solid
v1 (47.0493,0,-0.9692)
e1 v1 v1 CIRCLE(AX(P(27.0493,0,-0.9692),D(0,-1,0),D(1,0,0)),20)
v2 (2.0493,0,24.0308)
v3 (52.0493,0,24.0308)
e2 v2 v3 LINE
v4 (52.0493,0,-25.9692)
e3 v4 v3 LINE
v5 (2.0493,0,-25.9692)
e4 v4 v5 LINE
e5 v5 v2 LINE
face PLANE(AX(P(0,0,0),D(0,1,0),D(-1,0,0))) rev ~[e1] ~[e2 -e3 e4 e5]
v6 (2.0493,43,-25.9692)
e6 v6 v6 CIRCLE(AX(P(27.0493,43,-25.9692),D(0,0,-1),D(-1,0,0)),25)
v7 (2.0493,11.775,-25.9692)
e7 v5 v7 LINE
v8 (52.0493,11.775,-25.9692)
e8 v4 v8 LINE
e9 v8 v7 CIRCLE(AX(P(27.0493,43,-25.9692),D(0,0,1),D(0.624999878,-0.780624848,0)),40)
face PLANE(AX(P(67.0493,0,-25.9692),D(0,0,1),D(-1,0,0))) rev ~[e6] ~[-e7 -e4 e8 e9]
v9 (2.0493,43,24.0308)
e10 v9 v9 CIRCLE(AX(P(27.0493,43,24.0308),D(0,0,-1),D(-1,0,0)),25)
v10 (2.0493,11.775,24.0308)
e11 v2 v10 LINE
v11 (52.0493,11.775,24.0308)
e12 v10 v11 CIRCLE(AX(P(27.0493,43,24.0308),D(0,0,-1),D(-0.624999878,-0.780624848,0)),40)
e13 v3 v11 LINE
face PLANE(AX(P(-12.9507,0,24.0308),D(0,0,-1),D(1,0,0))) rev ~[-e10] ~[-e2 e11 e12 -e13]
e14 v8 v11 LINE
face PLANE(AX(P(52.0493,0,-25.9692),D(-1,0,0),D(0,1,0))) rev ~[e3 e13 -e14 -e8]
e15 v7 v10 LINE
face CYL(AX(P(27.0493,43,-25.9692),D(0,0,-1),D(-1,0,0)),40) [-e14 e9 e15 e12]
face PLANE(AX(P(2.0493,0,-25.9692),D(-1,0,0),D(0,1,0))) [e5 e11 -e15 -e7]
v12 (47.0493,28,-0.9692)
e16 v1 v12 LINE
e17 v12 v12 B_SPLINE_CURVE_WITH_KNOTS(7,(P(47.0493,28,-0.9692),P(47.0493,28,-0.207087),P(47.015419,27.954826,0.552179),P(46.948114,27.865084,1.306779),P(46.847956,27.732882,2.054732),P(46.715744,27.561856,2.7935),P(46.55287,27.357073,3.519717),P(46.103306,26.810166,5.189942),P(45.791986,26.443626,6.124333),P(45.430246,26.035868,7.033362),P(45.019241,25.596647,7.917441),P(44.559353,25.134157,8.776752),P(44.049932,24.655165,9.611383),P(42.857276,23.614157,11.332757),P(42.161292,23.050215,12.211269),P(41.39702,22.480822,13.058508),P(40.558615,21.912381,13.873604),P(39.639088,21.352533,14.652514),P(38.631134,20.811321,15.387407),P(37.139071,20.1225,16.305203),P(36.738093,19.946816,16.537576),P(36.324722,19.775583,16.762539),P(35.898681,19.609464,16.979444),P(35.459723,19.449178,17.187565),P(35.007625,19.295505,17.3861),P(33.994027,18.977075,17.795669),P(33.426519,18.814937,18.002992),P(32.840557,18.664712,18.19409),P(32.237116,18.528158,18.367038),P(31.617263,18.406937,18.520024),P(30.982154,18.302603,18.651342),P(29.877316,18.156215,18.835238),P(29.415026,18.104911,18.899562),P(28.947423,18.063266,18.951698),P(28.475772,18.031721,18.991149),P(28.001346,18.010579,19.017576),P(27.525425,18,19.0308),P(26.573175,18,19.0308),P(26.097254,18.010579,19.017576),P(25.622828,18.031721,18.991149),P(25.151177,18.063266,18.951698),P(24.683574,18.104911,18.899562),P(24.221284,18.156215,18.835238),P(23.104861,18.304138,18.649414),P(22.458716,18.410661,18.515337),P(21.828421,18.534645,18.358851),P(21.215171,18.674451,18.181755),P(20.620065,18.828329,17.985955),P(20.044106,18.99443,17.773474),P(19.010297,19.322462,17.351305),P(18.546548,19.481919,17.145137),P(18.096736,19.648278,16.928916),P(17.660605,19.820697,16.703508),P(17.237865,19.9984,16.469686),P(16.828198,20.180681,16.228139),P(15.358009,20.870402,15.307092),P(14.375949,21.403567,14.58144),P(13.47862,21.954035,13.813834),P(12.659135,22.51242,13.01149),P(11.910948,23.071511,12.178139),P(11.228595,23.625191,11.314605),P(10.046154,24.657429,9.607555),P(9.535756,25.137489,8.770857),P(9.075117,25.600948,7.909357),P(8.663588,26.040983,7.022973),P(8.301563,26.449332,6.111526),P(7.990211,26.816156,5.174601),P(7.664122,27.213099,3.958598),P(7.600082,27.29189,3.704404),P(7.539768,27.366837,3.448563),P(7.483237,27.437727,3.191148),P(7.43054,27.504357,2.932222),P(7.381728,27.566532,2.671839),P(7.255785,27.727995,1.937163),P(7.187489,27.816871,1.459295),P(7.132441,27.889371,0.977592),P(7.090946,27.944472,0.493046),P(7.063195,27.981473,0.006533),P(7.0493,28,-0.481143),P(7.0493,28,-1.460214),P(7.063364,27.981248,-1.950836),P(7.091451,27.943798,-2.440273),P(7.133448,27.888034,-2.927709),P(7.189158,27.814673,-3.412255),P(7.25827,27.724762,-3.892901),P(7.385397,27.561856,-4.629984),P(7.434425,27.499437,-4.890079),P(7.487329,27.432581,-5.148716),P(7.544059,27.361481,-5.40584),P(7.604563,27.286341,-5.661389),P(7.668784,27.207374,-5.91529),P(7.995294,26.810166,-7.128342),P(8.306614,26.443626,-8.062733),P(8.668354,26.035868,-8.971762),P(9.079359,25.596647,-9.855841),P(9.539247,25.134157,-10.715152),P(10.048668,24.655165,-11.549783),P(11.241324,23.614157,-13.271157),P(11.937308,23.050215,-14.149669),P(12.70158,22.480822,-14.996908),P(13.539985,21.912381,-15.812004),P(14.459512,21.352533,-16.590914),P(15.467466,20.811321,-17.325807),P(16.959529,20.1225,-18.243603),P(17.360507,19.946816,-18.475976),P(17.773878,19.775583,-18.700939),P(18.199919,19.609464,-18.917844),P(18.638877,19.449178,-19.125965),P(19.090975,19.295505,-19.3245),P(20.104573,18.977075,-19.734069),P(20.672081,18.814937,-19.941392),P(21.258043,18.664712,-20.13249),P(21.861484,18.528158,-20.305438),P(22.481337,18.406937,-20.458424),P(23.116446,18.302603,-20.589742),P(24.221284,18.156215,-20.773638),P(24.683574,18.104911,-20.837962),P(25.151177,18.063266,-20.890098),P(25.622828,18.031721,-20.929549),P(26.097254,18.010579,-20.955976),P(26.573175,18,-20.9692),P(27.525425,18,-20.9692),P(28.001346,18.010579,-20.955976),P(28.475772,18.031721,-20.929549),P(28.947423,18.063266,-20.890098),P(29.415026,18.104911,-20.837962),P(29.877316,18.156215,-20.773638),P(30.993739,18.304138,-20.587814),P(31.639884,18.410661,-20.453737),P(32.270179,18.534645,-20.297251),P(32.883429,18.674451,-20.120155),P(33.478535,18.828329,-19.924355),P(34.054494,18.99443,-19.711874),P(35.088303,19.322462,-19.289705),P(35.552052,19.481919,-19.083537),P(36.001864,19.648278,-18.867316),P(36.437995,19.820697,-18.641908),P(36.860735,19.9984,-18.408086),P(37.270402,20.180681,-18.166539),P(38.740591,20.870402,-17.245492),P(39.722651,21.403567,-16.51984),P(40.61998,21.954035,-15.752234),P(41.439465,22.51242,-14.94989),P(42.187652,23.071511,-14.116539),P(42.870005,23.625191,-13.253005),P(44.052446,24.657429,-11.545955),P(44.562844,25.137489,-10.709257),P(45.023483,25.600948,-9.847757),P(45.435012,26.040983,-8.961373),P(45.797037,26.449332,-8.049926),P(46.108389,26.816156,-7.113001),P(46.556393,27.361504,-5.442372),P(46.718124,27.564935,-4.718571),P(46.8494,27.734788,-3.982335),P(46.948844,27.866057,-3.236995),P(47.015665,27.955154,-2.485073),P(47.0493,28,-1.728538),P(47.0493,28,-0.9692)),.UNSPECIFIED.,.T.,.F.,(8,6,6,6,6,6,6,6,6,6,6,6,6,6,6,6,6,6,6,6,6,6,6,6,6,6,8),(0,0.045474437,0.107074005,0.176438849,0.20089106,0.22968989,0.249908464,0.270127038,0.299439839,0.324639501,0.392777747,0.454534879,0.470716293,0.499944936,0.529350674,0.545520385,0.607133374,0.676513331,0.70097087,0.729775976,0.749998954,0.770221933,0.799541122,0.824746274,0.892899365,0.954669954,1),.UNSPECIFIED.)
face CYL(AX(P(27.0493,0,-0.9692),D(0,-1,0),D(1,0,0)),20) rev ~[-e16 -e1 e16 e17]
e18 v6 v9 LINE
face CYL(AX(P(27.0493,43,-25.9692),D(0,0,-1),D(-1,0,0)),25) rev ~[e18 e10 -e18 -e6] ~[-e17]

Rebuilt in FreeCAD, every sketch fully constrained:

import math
import FreeCAD as App
import Part
import Sketcher
from FreeCAD import Vector

doc = App.newDocument("Part")
params = doc.addObject("Spreadsheet::Sheet", "Params")
for row, (alias, value) in enumerate([
    ("sketch1_width", "80 mm"),
    ("sketch1_height", "50 mm"),
    ("pad1_length", "86 mm"),
    ("sketch2_diameter", "50 mm"),
    ("pocket1_length", "100 mm"),
    ("sketch3_diameter", "40 mm"),
    ("pocket2_length", "47.6125 mm"),
    ("sketch4_width", "15 mm"),
    ("sketch4_radius", "40 mm"),
    ("sketch4_height", "43 mm"),
    ("pocket3_length", "100 mm"),
    ("sketch5_width", "15 mm"),
    ("sketch5_radius", "40 mm"),
    ("sketch5_height", "43 mm"),
    ("pocket4_length", "100 mm"),
    ("sketch6_radius", "40 mm"),
    ("sketch6_height", "43 mm"),
    ("pocket5_length", "100 mm"),
], start=1):
    params.set(f"A{row}", alias)
    params.set(f"B{row}", "=" + value)
    params.setAlias(f"B{row}", alias)

body = doc.addObject("PartDesign::Body", "Body")

sketch1 = doc.addObject("Sketcher::SketchObject", "Sketch")
body.addObject(sketch1)
sketch1.AttachmentSupport = (doc.XZ_Plane, [""])
sketch1.MapMode = "FlatFace"
sketch1.addGeometry([
    Part.LineSegment(Vector(-12.9507, -25.9692, 0), Vector(-12.9507, 24.0308, 0)),
    Part.LineSegment(Vector(-12.9507, 24.0308, 0), Vector(67.0493, 24.0308, 0)),
    Part.LineSegment(Vector(67.0493, 24.0308, 0), Vector(67.0493, -25.9692, 0)),
    Part.LineSegment(Vector(67.0493, -25.9692, 0), Vector(-12.9507, -25.9692, 0)),
], False)
sketch1.addConstraint([
    Sketcher.Constraint("Coincident", 0, 2, 1, 1),
    Sketcher.Constraint("Coincident", 1, 2, 2, 1),
    Sketcher.Constraint("Coincident", 2, 2, 3, 1),
    Sketcher.Constraint("Coincident", 3, 2, 0, 1),
    Sketcher.Constraint("Vertical", 0),
    Sketcher.Constraint("Horizontal", 1),
    Sketcher.Constraint("Vertical", 2),
    Sketcher.Constraint("Horizontal", 3),
    Sketcher.Constraint("DistanceX", 1, 1, 1, 2, 80.0),
    Sketcher.Constraint("DistanceY", 0, 1, 0, 2, 50.0),
    Sketcher.Constraint("DistanceX", 0, 2, -1, 1, 12.9507),
    Sketcher.Constraint("DistanceY", -1, 1, 0, 2, 24.0308),
])
sketch1.setExpression("Constraints[8]", "Params.sketch1_width")
sketch1.setExpression("Constraints[9]", "Params.sketch1_height")
pad1 = doc.addObject("PartDesign::Pad", "Pad")
body.addObject(pad1)
pad1.Profile = sketch1
pad1.setExpression("Length", "Params.pad1_length")
pad1.Reversed = True

sketch2 = doc.addObject("Sketcher::SketchObject", "Sketch001")
body.addObject(sketch2)
sketch2.AttachmentSupport = (doc.XY_Plane, [""])
sketch2.MapMode = "FlatFace"
sketch2.AttachmentOffset = App.Placement(Vector(0, 0, -25.9692), App.Rotation())
sketch2.addGeometry(Part.Circle(Vector(27.0493, 43, 0), Vector(0, 0, 1), 25), False)
sketch2.addConstraint([
    Sketcher.Constraint("Diameter", 0, 50.0),
    Sketcher.Constraint("DistanceY", -1, 1, 0, 3, 43.0),
    Sketcher.Constraint("DistanceX", -1, 1, 0, 3, 27.0493),
])
sketch2.setExpression("Constraints[0]", "Params.sketch2_diameter")
pocket1 = doc.addObject("PartDesign::Pocket", "Pocket")
body.addObject(pocket1)
pocket1.Profile = sketch2
pocket1.setExpression("Length", "Params.pocket1_length")
pocket1.Reversed = True

sketch3 = doc.addObject("Sketcher::SketchObject", "Sketch002")
body.addObject(sketch3)
sketch3.AttachmentSupport = (doc.XZ_Plane, [""])
sketch3.MapMode = "FlatFace"
sketch3.addGeometry(Part.Circle(Vector(27.0493, -0.9692, 0), Vector(0, 0, 1), 20), False)
sketch3.addConstraint([
    Sketcher.Constraint("Diameter", 0, 40.0),
    Sketcher.Constraint("DistanceX", -1, 1, 0, 3, 27.0493),
    Sketcher.Constraint("DistanceY", 0, 3, -1, 1, 0.9692),
])
sketch3.setExpression("Constraints[0]", "Params.sketch3_diameter")
pocket2 = doc.addObject("PartDesign::Pocket", "Pocket001")
body.addObject(pocket2)
pocket2.Profile = sketch3
pocket2.setExpression("Length", "Params.pocket2_length")

sketch4 = doc.addObject("Sketcher::SketchObject", "Sketch003")
body.addObject(sketch4)
sketch4.AttachmentSupport = (doc.XY_Plane, [""])
sketch4.MapMode = "FlatFace"
sketch4.AttachmentOffset = App.Placement(Vector(0, 0, -25.9692), App.Rotation())
sketch4.addGeometry([
    Part.LineSegment(Vector(52.0493, 0, 0), Vector(52.0493, 11.775, 0)),
    Part.ArcOfCircle(Part.Circle(Vector(27.0493, 43, 0), Vector(0, 0, 1), 40), math.radians(-51.317822), math.radians(0)),
    Part.LineSegment(Vector(67.0493, 43, 0), Vector(67.0493, 0, 0)),
    Part.LineSegment(Vector(67.0493, 0, 0), Vector(52.0493, 0, 0)),
], False)
sketch4.addConstraint([
    Sketcher.Constraint("Coincident", 0, 2, 1, 1),
    Sketcher.Constraint("Tangent", 1, 2, 2, 1),
    Sketcher.Constraint("Coincident", 2, 2, 3, 1),
    Sketcher.Constraint("Coincident", 3, 2, 0, 1),
    Sketcher.Constraint("Vertical", 0),
    Sketcher.Constraint("Vertical", 2),
    Sketcher.Constraint("Horizontal", 3),
    Sketcher.Constraint("PointOnObject", 2, 2, -1),
    Sketcher.Constraint("DistanceX", 3, 2, 3, 1, 15.0),
    Sketcher.Constraint("Radius", 1, 40.0),
    Sketcher.Constraint("DistanceY", 2, 2, 2, 1, 43.0),
    Sketcher.Constraint("DistanceX", -1, 1, 1, 3, 27.0493),
])
sketch4.setExpression("Constraints[8]", "Params.sketch4_width")
sketch4.setExpression("Constraints[9]", "Params.sketch4_radius")
sketch4.setExpression("Constraints[10]", "Params.sketch4_height")
pocket3 = doc.addObject("PartDesign::Pocket", "Pocket002")
body.addObject(pocket3)
pocket3.Profile = sketch4
pocket3.setExpression("Length", "Params.pocket3_length")
pocket3.Reversed = True

sketch5 = doc.addObject("Sketcher::SketchObject", "Sketch004")
body.addObject(sketch5)
sketch5.AttachmentSupport = (doc.XY_Plane, [""])
sketch5.MapMode = "FlatFace"
sketch5.AttachmentOffset = App.Placement(Vector(0, 0, -25.9692), App.Rotation())
sketch5.addGeometry([
    Part.ArcOfCircle(Part.Circle(Vector(27.0493, 43, 0), Vector(0, 0, 1), 40), math.radians(180), math.radians(231.317822)),
    Part.LineSegment(Vector(2.0493, 11.775, 0), Vector(2.0493, 0, 0)),
    Part.LineSegment(Vector(2.0493, 0, 0), Vector(-12.9507, 0, 0)),
    Part.LineSegment(Vector(-12.9507, 0, 0), Vector(-12.9507, 43, 0)),
], False)
sketch5.addConstraint([
    Sketcher.Constraint("Coincident", 0, 2, 1, 1),
    Sketcher.Constraint("Coincident", 1, 2, 2, 1),
    Sketcher.Constraint("Coincident", 2, 2, 3, 1),
    Sketcher.Constraint("Tangent", 3, 2, 0, 1),
    Sketcher.Constraint("Vertical", 1),
    Sketcher.Constraint("Horizontal", 2),
    Sketcher.Constraint("Vertical", 3),
    Sketcher.Constraint("PointOnObject", 1, 2, -1),
    Sketcher.Constraint("DistanceX", 2, 2, 2, 1, 15.0),
    Sketcher.Constraint("Radius", 0, 40.0),
    Sketcher.Constraint("DistanceY", 3, 1, 3, 2, 43.0),
    Sketcher.Constraint("DistanceX", -1, 1, 0, 3, 27.0493),
])
sketch5.setExpression("Constraints[8]", "Params.sketch5_width")
sketch5.setExpression("Constraints[9]", "Params.sketch5_radius")
sketch5.setExpression("Constraints[10]", "Params.sketch5_height")
pocket4 = doc.addObject("PartDesign::Pocket", "Pocket003")
body.addObject(pocket4)
pocket4.Profile = sketch5
pocket4.setExpression("Length", "Params.pocket4_length")
pocket4.Reversed = True

sketch6 = doc.addObject("Sketcher::SketchObject", "Sketch005")
body.addObject(sketch6)
sketch6.AttachmentSupport = (doc.XY_Plane, [""])
sketch6.MapMode = "FlatFace"
sketch6.AttachmentOffset = App.Placement(Vector(0, 0, -25.9692), App.Rotation())
sketch6.addGeometry([
    Part.LineSegment(Vector(67.0493, 86, 0), Vector(67.0493, 43, 0)),
    Part.ArcOfCircle(Part.Circle(Vector(27.0493, 43, 0), Vector(0, 0, 1), 40), math.radians(0), math.radians(180)),
    Part.LineSegment(Vector(-12.9507, 43, 0), Vector(-12.9507, 86, 0)),
    Part.LineSegment(Vector(-12.9507, 86, 0), Vector(67.0493, 86, 0)),
], False)
sketch6.addConstraint([
    Sketcher.Constraint("Tangent", 0, 2, 1, 1),
    Sketcher.Constraint("Tangent", 1, 2, 2, 1),
    Sketcher.Constraint("Coincident", 2, 2, 3, 1),
    Sketcher.Constraint("Coincident", 3, 2, 0, 1),
    Sketcher.Constraint("Vertical", 0),
    Sketcher.Constraint("Vertical", 2),
    Sketcher.Constraint("Horizontal", 3),
    Sketcher.Constraint("Radius", 1, 40.0),
    Sketcher.Constraint("DistanceY", 0, 2, 0, 1, 43.0),
    Sketcher.Constraint("DistanceY", -1, 1, 1, 3, 43.0),
    Sketcher.Constraint("DistanceX", -1, 1, 1, 3, 27.0493),
])
sketch6.setExpression("Constraints[7]", "Params.sketch6_radius")
sketch6.setExpression("Constraints[8]", "Params.sketch6_height")
pocket5 = doc.addObject("PartDesign::Pocket", "Pocket004")
body.addObject(pocket5)
pocket5.Profile = sketch6
pocket5.setExpression("Length", "Params.pocket5_length")
pocket5.Reversed = True

doc.recompute()
